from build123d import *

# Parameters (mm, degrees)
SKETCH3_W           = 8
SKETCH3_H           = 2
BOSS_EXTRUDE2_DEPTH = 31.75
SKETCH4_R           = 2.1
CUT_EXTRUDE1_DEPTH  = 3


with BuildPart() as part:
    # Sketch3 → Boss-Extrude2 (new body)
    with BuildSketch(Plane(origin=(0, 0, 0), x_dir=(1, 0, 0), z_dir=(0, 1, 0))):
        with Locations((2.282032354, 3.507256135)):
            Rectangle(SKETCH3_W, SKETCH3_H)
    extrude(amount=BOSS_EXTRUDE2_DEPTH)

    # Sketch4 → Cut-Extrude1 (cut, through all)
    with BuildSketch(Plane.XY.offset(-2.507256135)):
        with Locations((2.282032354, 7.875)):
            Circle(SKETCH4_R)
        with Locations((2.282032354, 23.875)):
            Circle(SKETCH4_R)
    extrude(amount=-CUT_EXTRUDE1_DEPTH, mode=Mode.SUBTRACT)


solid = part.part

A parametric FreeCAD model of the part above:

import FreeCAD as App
import Part
import Sketcher


def add_polygon(sketch, points):
    """Adds a closed chain of lines whose ends are joined by coincident constraints."""
    first, n = sketch.GeometryCount, len(points)
    for a, b in zip(points, points[1:] + points[:1]):
        sketch.addGeometry(Part.LineSegment(App.Vector(*a, 0), App.Vector(*b, 0)), False)
    for i in range(n):
        sketch.addConstraint(Sketcher.Constraint("Coincident", first + i, 2, first + (i + 1) % n, 1))

doc = App.newDocument("Part")
body = doc.addObject("PartDesign::Body", "Body")

# Sketch on XZ plane
sketch1 = body.newObject("Sketcher::SketchObject", "Sketch")
sketch1.AttachmentSupport = (doc.getObject("XZ_Plane"), [""])
sketch1.MapMode = "FlatFace"
add_polygon(sketch1, [(-1.7, -4.5), (-1.7, -2.5), (6.3, -2.5), (6.3, -4.5)])  # lines 0-3
sketch1.addConstraint([
    Sketcher.Constraint("Vertical", 0),
    Sketcher.Constraint("Horizontal", 1),
    Sketcher.Constraint("Vertical", 2),
    Sketcher.Constraint("Horizontal", 3),
    Sketcher.Constraint("DistanceX", 1, 1, 1, 2, 8.0),
    Sketcher.Constraint("DistanceY", 0, 1, 0, 2, 2.0),
    Sketcher.Constraint("DistanceX", 0, 2, -1, 1, 1.717968),
    Sketcher.Constraint("DistanceY", 0, 2, -1, 1, 2.507256),
])
pad1 = body.newObject("PartDesign::Pad", "Pad")
pad1.Profile = sketch1
pad1.Length = 31.75
pad1.Reversed = True

# Sketch on XY plane
sketch2 = body.newObject("Sketcher::SketchObject", "Sketch001")
sketch2.AttachmentSupport = (doc.getObject("XY_Plane"), [""])
sketch2.MapMode = "FlatFace"
sketch2.AttachmentOffset = App.Placement(App.Vector(0, 0, -2.507256), App.Rotation())
sketch2.addGeometry([
    Part.Circle(App.Vector(2.3, 7.9, 0), App.Vector(0, 0, 1), 2.1),
    Part.Circle(App.Vector(2.3, 23.9, 0), App.Vector(0, 0, 1), 2.1),
], False)
sketch2.addConstraint([
    Sketcher.Constraint("Equal", 0, 1),
    Sketcher.Constraint("Vertical", 0, 3, 1, 3),
    Sketcher.Constraint("Diameter", 0, 4.2),
    Sketcher.Constraint("DistanceY", 0, 3, 1, 3, 16.0),
    Sketcher.Constraint("DistanceY", -1, 1, 0, 3, 7.875),
    Sketcher.Constraint("DistanceX", -1, 1, 0, 3, 2.282032),
])
pocket1 = body.newObject("PartDesign::Pocket", "Pocket")
pocket1.Profile = sketch2
pocket1.Type = "ThroughAll"

doc.recompute()
